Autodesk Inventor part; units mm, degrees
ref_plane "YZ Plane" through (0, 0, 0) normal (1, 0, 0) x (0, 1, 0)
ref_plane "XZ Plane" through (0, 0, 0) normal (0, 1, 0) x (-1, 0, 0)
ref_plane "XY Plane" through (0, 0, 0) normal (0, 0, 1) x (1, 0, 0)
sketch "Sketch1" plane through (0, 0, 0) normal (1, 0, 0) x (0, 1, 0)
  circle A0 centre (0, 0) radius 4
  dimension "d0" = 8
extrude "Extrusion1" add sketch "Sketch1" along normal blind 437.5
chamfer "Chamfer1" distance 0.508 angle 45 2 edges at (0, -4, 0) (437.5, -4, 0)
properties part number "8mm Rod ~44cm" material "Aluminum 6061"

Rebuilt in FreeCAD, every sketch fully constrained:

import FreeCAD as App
import Part
import Sketcher
Q = App.Units.Quantity


def edges_at(feature, points):
    """Names of the edges that pass closest to the given points."""
    edges = feature.Shape.Edges
    near = lambda p: min(range(len(edges)), key=lambda i: edges[i].distToShape(Part.Vertex(*p))[0])
    return sorted({f"Edge{near(p) + 1}" for p in points})

doc = App.newDocument("Part")
params = doc.addObject("Spreadsheet::Sheet", "Params")
for row, (alias, value) in enumerate([
    ("sketch1_diameter", "8 mm"),
    ("pad1_length", "437.5 mm"),
    ("chamfer_size", "0.508 mm"),
], start=1):
    params.set(f"A{row}", alias)
    params.set(f"B{row}", "=" + value)
    params.setAlias(f"B{row}", alias)

body = doc.addObject("PartDesign::Body", "Body")

# Sketch on YZ plane
sketch1 = body.newObject("Sketcher::SketchObject", "Sketch")
sketch1.AttachmentSupport = (doc.getObject("YZ_Plane"), [""])
sketch1.MapMode = "FlatFace"
sketch1.addGeometry(Part.Circle(App.Vector(0, 0, 0), App.Vector(0, 0, 1), 4), False)
sketch1.addConstraint([
    Sketcher.Constraint("Coincident", 0, 3, -1, 1),
    Sketcher.Constraint("Diameter", 0, Q("8 mm")),
])
sketch1.setExpression("Constraints[1]", "Params.sketch1_diameter")
pad1 = body.newObject("PartDesign::Pad", "Pad")
pad1.Profile = sketch1
pad1.setExpression("Length", "Params.pad1_length")
doc.recompute()

chamfer = body.newObject("PartDesign::Chamfer", "Chamfer")
chamfer.Base = (pad1, edges_at(pad1, [(0, -4, 0), (437.5, -4, 0)]))
chamfer.setExpression("Size", "Params.chamfer_size")

doc.recompute()
